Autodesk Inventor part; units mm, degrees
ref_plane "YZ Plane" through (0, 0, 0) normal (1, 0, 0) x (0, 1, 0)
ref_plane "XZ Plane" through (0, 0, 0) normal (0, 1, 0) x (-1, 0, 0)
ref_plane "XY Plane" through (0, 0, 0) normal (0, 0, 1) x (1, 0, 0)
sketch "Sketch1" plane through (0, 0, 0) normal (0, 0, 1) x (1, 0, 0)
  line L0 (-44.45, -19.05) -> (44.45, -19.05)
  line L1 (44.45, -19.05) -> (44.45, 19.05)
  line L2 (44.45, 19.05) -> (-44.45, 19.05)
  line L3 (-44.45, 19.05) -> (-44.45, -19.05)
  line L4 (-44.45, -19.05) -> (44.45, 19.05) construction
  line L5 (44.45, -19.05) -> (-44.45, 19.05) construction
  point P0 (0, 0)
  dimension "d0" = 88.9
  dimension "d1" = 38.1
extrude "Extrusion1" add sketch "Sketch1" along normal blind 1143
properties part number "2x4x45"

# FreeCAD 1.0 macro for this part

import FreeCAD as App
import Part
import Sketcher
from FreeCAD import Vector
Q = App.Units.Quantity


def add_polygon(sketch, points):
    """Adds a closed chain of lines whose ends are joined by coincident constraints."""
    first, n = sketch.GeometryCount, len(points)
    for a, b in zip(points, points[1:] + points[:1]):
        sketch.addGeometry(Part.LineSegment(App.Vector(*a, 0), App.Vector(*b, 0)), False)
    for i in range(n):
        sketch.addConstraint(Sketcher.Constraint("Coincident", first + i, 2, first + (i + 1) % n, 1))

doc = App.newDocument("Part")
body = doc.addObject("PartDesign::Body", "Body")

# Sketch on XY plane
sketch1 = doc.addObject("Sketcher::SketchObject", "Sketch")
body.addObject(sketch1)
sketch1.AttachmentSupport = (doc.XY_Plane, [""])
sketch1.MapMode = "FlatFace"
add_polygon(sketch1, [(-44, 19), (-44, -19), (44, -19), (44, 19)])  # lines 0-3
sketch1.addConstraint(Sketcher.Constraint("Vertical", 0))
sketch1.addConstraint(Sketcher.Constraint("Horizontal", 1))
sketch1.addConstraint(Sketcher.Constraint("Vertical", 2))
sketch1.addConstraint(Sketcher.Constraint("Horizontal", 3))
sketch1.addConstraint(Sketcher.Constraint("Symmetric", 0, 2, 2, 2, -1, 1))
sketch1.addConstraint(Sketcher.Constraint("DistanceX", 1, 1, 1, 2, Q("3.5 in")))
sketch1.addConstraint(Sketcher.Constraint("DistanceY", 0, 2, 0, 1, Q("1.5 in")))
pad1 = doc.addObject("PartDesign::Pad", "Pad")
body.addObject(pad1)
pad1.Profile = sketch1
pad1.Length = Q("45 in")

doc.recompute()
